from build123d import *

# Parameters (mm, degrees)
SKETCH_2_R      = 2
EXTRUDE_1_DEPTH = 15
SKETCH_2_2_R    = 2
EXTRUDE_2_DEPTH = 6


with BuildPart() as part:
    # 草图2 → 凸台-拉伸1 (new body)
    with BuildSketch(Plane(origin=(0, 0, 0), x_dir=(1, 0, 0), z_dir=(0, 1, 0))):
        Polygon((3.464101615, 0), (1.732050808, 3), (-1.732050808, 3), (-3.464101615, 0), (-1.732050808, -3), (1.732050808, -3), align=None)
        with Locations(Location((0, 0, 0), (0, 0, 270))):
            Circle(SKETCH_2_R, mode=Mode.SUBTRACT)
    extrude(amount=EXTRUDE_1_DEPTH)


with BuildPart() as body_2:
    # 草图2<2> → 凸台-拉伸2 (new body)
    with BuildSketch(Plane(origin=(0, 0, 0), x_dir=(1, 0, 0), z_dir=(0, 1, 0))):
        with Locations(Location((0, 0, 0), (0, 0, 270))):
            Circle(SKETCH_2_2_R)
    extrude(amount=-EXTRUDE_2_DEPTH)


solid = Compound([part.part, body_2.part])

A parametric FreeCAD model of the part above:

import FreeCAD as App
import Part
import Sketcher

V = App.Vector
Q = App.Units.Quantity


def add_polygon(sketch, points):
    """Adds a closed chain of lines whose ends are joined by coincident constraints."""
    first, n = sketch.GeometryCount, len(points)
    for a, b in zip(points, points[1:] + points[:1]):
        sketch.addGeometry(Part.LineSegment(App.Vector(*a, 0), App.Vector(*b, 0)), False)
    for i in range(n):
        sketch.addConstraint(Sketcher.Constraint("Coincident", first + i, 2, first + (i + 1) % n, 1))

doc = App.newDocument("Part")
body = doc.addObject("PartDesign::Body", "Body")

# Sketch on XZ plane
sketch1 = doc.addObject("Sketcher::SketchObject", "Sketch")
body.addObject(sketch1)
sketch1.AttachmentSupport = (doc.XZ_Plane, [""])
sketch1.MapMode = "FlatFace"
add_polygon(sketch1, [(3.5, 0), (1.7, -3), (-1.7, -3), (-3.5, 0), (-1.7, 3), (1.7, 3)])  # lines 0-5
sketch1.addGeometry(Part.Circle(V(0, 0, 0), V(0, 0, 1), 2), False)  # 6
sketch1.addConstraint(Sketcher.Constraint("Horizontal", 1))
sketch1.addConstraint(Sketcher.Constraint("Horizontal", 4))
sketch1.addConstraint(Sketcher.Constraint("Coincident", 6, 3, -1, 1))
sketch1.addConstraint(Sketcher.Constraint("Symmetric", 0, 2, 3, 2, -1, 1))
sketch1.addConstraint(Sketcher.Constraint("Symmetric", 2, 2, 5, 2, -1, 1))
sketch1.addConstraint(Sketcher.Constraint("PointOnObject", 2, 2, -1))
sketch1.addConstraint(Sketcher.Constraint("Parallel", 2, 5))
sketch1.addConstraint(Sketcher.Constraint("Vertical", 1, 2, 3, 2))
sketch1.addConstraint(Sketcher.Constraint("Diameter", 6, Q("4 mm")))
sketch1.addConstraint(Sketcher.Constraint("Angle", 0, Q("-120 deg")))
sketch1.addConstraint(Sketcher.Constraint("DistanceY", 0, 2, -1, 1, Q("3 mm")))
sketch1.addConstraint(Sketcher.Constraint("DistanceX", 1, 2, 1, 1, Q("3.464102 mm")))
pad1 = doc.addObject("PartDesign::Pad", "Pad")
body.addObject(pad1)
pad1.Profile = sketch1
pad1.Length = 15
pad1.Reversed = True
body2 = doc.addObject("PartDesign::Body", "Body001")

# Sketch on XZ plane
sketch2 = doc.addObject("Sketcher::SketchObject", "Sketch001")
body2.addObject(sketch2)
sketch2.AttachmentSupport = (doc.getObject("XZ_Plane001"), [""])
sketch2.MapMode = "FlatFace"
sketch2.addGeometry(Part.Circle(V(0, 0, 0), V(0, 0, 1), 2), False)
sketch2.addConstraint(Sketcher.Constraint("Coincident", 0, 3, -1, 1))
sketch2.addConstraint(Sketcher.Constraint("Diameter", 0, Q("4 mm")))
pad2 = doc.addObject("PartDesign::Pad", "Pad001")
body2.addObject(pad2)
pad2.Profile = sketch2
pad2.Length = 6

doc.recompute()
